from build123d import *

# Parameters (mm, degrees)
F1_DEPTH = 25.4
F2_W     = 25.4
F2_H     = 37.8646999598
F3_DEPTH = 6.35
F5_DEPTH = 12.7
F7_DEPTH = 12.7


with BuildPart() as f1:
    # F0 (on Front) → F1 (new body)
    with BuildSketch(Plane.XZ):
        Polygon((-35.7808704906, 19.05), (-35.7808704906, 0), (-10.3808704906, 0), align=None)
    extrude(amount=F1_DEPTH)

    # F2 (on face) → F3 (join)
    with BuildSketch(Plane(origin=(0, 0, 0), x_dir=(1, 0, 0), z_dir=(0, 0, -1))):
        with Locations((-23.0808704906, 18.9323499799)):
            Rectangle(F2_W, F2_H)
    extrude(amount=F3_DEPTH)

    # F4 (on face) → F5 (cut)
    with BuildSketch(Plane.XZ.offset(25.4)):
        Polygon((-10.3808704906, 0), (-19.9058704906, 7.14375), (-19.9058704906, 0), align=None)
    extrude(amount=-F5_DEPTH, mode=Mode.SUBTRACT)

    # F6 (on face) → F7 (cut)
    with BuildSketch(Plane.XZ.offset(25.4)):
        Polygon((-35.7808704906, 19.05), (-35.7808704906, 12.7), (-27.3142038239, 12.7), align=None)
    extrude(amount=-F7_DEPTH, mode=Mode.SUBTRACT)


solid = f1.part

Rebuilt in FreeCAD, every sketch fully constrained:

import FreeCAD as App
import Part
import Sketcher

V = App.Vector
Q = App.Units.Quantity

doc = App.newDocument("Part")
body = doc.addObject("PartDesign::Body", "Body")

# Sketch on XZ plane
sketch1 = doc.addObject("Sketcher::SketchObject", "Sketch")
body.addObject(sketch1)
sketch1.AttachmentSupport = (doc.XZ_Plane, [""])
sketch1.MapMode = "FlatFace"
sketch1.addGeometry(Part.LineSegment(V(-36, 19, 0), V(-36, 0, 0)), False)
sketch1.addGeometry(Part.LineSegment(V(-36, 0, 0), V(-10, 0, 0)), False)
sketch1.addGeometry(Part.LineSegment(V(-10, 0, 0), V(-36, 19, 0)), False)
sketch1.addConstraint(Sketcher.Constraint("Coincident", 0, 2, 1, 1))
sketch1.addConstraint(Sketcher.Constraint("Coincident", 1, 2, 2, 1))
sketch1.addConstraint(Sketcher.Constraint("Coincident", 2, 2, 0, 1))
sketch1.addConstraint(Sketcher.Constraint("Vertical", 0))
sketch1.addConstraint(Sketcher.Constraint("Horizontal", 1))
sketch1.addConstraint(Sketcher.Constraint("PointOnObject", 0, 2, -1))
sketch1.addConstraint(Sketcher.Constraint("DistanceX", 1, 1, 1, 2, Q("1 in")))
sketch1.addConstraint(Sketcher.Constraint("DistanceY", 0, 2, 0, 1, Q("0.75 in")))
sketch1.addConstraint(Sketcher.Constraint("DistanceX", 0, 2, -1, 1, Q("35.78087 mm")))
pad1 = doc.addObject("PartDesign::Pad", "Pad")
body.addObject(pad1)
pad1.Profile = sketch1
pad1.Length = Q("1 in")

# Sketch on XY plane
sketch2 = doc.addObject("Sketcher::SketchObject", "Sketch001")
body.addObject(sketch2)
sketch2.AttachmentSupport = (doc.XY_Plane, [""])
sketch2.MapMode = "FlatFace"
sketch2.addGeometry(Part.LineSegment(V(-36, -38, 0), V(-36, 0, 0)), False)
sketch2.addGeometry(Part.LineSegment(V(-36, 0, 0), V(-10, 0, 0)), False)
sketch2.addGeometry(Part.LineSegment(V(-10, 0, 0), V(-10, -38, 0)), False)
sketch2.addGeometry(Part.LineSegment(V(-10, -38, 0), V(-36, -38, 0)), False)
sketch2.addConstraint(Sketcher.Constraint("Coincident", 0, 2, 1, 1))
sketch2.addConstraint(Sketcher.Constraint("Coincident", 1, 2, 2, 1))
sketch2.addConstraint(Sketcher.Constraint("Coincident", 2, 2, 3, 1))
sketch2.addConstraint(Sketcher.Constraint("Coincident", 3, 2, 0, 1))
sketch2.addConstraint(Sketcher.Constraint("Vertical", 0))
sketch2.addConstraint(Sketcher.Constraint("Horizontal", 1))
sketch2.addConstraint(Sketcher.Constraint("Vertical", 2))
sketch2.addConstraint(Sketcher.Constraint("Horizontal", 3))
sketch2.addConstraint(Sketcher.Constraint("PointOnObject", 0, 2, -1))
sketch2.addConstraint(Sketcher.Constraint("DistanceX", 1, 1, 1, 2, Q("1 in")))
sketch2.addConstraint(Sketcher.Constraint("DistanceY", 0, 1, 0, 2, Q("37.8647 mm")))
sketch2.addConstraint(Sketcher.Constraint("DistanceX", 0, 2, -1, 1, Q("35.78087 mm")))
pad2 = doc.addObject("PartDesign::Pad", "Pad001")
body.addObject(pad2)
pad2.Profile = sketch2
pad2.Length = Q("0.25 in")
pad2.Reversed = True

# Sketch on XZ plane
sketch3 = doc.addObject("Sketcher::SketchObject", "Sketch002")
body.addObject(sketch3)
sketch3.AttachmentSupport = (doc.XZ_Plane, [""])
sketch3.MapMode = "FlatFace"
sketch3.AttachmentOffset = App.Placement(V(0, 0, 1 * 25.4), App.Rotation())
sketch3.addGeometry(Part.LineSegment(V(-10, 0, 0), V(-20, 7, 0)), False)
sketch3.addGeometry(Part.LineSegment(V(-20, 7, 0), V(-20, 0, 0)), False)
sketch3.addGeometry(Part.LineSegment(V(-20, 0, 0), V(-10, 0, 0)), False)
sketch3.addConstraint(Sketcher.Constraint("Coincident", 0, 2, 1, 1))
sketch3.addConstraint(Sketcher.Constraint("Coincident", 1, 2, 2, 1))
sketch3.addConstraint(Sketcher.Constraint("Coincident", 2, 2, 0, 1))
sketch3.addConstraint(Sketcher.Constraint("Vertical", 1))
sketch3.addConstraint(Sketcher.Constraint("Horizontal", 2))
sketch3.addConstraint(Sketcher.Constraint("PointOnObject", 1, 2, -1))
sketch3.addConstraint(Sketcher.Constraint("DistanceX", 2, 1, 2, 2, Q("0.375 in")))
sketch3.addConstraint(Sketcher.Constraint("DistanceY", 1, 2, 1, 1, Q("0.28125 in")))
sketch3.addConstraint(Sketcher.Constraint("DistanceX", 0, 2, -1, 1, Q("19.90587 mm")))
pocket1 = doc.addObject("PartDesign::Pocket", "Pocket")
body.addObject(pocket1)
pocket1.Profile = sketch3
pocket1.Length = Q("0.5 in")

# Sketch on XZ plane
sketch4 = doc.addObject("Sketcher::SketchObject", "Sketch003")
body.addObject(sketch4)
sketch4.AttachmentSupport = (doc.XZ_Plane, [""])
sketch4.MapMode = "FlatFace"
sketch4.AttachmentOffset = App.Placement(V(0, 0, 1 * 25.4), App.Rotation())
sketch4.addGeometry(Part.LineSegment(V(-36, 19, 0), V(-36, 13, 0)), False)
sketch4.addGeometry(Part.LineSegment(V(-36, 13, 0), V(-27, 13, 0)), False)
sketch4.addGeometry(Part.LineSegment(V(-27, 13, 0), V(-36, 19, 0)), False)
sketch4.addConstraint(Sketcher.Constraint("Coincident", 0, 2, 1, 1))
sketch4.addConstraint(Sketcher.Constraint("Coincident", 1, 2, 2, 1))
sketch4.addConstraint(Sketcher.Constraint("Coincident", 2, 2, 0, 1))
sketch4.addConstraint(Sketcher.Constraint("Vertical", 0))
sketch4.addConstraint(Sketcher.Constraint("Horizontal", 1))
sketch4.addConstraint(Sketcher.Constraint("DistanceY", 0, 2, 0, 1, Q("0.25 in")))
sketch4.addConstraint(Sketcher.Constraint("DistanceY", -1, 1, 0, 2, Q("0.5 in")))
sketch4.addConstraint(Sketcher.Constraint("DistanceX", 1, 1, 1, 2, Q("8.466667 mm")))
sketch4.addConstraint(Sketcher.Constraint("DistanceX", 0, 2, -1, 1, Q("35.78087 mm")))
pocket2 = doc.addObject("PartDesign::Pocket", "Pocket001")
body.addObject(pocket2)
pocket2.Profile = sketch4
pocket2.Length = Q("0.5 in")

doc.recompute()
